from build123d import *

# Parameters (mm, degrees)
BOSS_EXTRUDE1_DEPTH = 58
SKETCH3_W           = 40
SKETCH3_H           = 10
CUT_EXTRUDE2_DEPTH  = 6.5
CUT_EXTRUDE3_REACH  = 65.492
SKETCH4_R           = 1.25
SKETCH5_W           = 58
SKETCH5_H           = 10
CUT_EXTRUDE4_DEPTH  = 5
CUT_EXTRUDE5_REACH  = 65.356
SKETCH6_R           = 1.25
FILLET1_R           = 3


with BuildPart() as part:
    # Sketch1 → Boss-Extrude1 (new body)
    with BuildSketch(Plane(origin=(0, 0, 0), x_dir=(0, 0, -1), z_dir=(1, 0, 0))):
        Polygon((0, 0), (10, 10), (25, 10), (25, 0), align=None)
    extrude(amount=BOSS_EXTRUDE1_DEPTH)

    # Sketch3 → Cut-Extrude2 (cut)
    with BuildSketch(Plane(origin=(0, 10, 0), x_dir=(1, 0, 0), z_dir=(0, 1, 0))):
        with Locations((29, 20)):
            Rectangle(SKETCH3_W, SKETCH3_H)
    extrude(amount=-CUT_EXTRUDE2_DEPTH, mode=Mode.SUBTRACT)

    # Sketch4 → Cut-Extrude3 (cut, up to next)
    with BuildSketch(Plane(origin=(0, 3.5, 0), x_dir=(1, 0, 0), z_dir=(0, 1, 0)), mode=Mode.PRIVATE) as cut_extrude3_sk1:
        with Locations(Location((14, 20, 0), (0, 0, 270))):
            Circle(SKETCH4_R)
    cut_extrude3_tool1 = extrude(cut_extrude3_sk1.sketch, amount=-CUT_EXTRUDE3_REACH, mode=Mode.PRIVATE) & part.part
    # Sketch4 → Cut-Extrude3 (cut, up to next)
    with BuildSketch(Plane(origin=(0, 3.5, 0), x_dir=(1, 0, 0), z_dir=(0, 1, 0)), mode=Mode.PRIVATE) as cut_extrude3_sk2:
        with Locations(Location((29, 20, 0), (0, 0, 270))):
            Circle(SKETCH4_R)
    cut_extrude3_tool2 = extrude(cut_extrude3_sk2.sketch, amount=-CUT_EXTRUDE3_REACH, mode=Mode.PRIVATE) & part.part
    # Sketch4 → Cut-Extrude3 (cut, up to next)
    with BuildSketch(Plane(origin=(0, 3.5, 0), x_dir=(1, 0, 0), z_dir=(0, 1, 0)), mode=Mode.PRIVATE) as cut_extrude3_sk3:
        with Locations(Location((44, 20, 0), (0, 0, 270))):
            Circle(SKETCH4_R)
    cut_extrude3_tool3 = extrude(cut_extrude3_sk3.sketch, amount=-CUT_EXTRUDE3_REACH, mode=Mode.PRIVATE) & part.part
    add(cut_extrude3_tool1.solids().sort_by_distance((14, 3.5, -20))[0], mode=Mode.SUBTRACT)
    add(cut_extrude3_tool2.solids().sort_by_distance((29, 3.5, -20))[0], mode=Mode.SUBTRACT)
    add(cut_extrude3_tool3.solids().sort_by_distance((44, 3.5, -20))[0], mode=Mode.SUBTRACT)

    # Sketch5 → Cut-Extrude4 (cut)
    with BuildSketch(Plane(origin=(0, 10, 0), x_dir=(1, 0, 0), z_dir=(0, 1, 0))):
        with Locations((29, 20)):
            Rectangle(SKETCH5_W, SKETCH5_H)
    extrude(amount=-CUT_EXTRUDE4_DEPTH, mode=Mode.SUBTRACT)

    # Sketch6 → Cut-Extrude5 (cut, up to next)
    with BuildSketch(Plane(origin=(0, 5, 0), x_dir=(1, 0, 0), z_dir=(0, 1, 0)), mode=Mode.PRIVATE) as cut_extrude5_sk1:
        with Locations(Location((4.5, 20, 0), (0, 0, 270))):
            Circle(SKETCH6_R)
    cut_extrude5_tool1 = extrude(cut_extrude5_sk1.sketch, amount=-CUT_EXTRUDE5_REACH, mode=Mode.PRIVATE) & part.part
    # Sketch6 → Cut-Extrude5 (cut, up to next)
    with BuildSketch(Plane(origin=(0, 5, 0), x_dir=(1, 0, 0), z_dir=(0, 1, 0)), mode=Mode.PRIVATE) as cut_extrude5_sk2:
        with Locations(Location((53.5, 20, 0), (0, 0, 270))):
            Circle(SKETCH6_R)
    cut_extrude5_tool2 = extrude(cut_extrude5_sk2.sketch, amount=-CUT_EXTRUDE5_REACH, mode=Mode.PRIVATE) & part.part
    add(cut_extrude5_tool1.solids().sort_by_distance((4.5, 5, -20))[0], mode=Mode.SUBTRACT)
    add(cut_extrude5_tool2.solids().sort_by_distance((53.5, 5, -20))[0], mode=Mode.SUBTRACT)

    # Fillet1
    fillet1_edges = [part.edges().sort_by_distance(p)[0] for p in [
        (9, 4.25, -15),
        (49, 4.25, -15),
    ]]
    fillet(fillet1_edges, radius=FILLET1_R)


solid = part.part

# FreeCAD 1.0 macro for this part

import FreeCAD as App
import Part
import Sketcher


def edges_at(feature, points):
    """Names of the edges that pass closest to the given points."""
    edges = feature.Shape.Edges
    near = lambda p: min(range(len(edges)), key=lambda i: edges[i].distToShape(Part.Vertex(*p))[0])
    return sorted({f"Edge{near(p) + 1}" for p in points})


def add_polygon(sketch, points):
    """Adds a closed chain of lines whose ends are joined by coincident constraints."""
    first, n = sketch.GeometryCount, len(points)
    for a, b in zip(points, points[1:] + points[:1]):
        sketch.addGeometry(Part.LineSegment(App.Vector(*a, 0), App.Vector(*b, 0)), False)
    for i in range(n):
        sketch.addConstraint(Sketcher.Constraint("Coincident", first + i, 2, first + (i + 1) % n, 1))

doc = App.newDocument("Part")
body = doc.addObject("PartDesign::Body", "Body")

sketch1 = doc.addObject("Sketcher::SketchObject", "Sketch")
body.addObject(sketch1)
sketch1.AttachmentSupport = (doc.YZ_Plane, [""])
sketch1.MapMode = "FlatFace"
add_polygon(sketch1, [(10, -10), (0, 0), (0, -25), (10, -25)])
sketch1.addConstraint([
    Sketcher.Constraint("Vertical", 1),
    Sketcher.Constraint("Horizontal", 2),
    Sketcher.Constraint("Vertical", 3),
    Sketcher.Constraint("Coincident", 0, 2, -1, 1),
    Sketcher.Constraint("DistanceX", 2, 1, 2, 2, 10.0),
    Sketcher.Constraint("DistanceY", 1, 2, 1, 1, 25.0),
    Sketcher.Constraint("DistanceY", 3, 1, 3, 2, 15.0),
])
pad1 = doc.addObject("PartDesign::Pad", "Pad")
body.addObject(pad1)
pad1.Profile = sketch1
pad1.Length = 58

sketch2 = doc.addObject("Sketcher::SketchObject", "Sketch001")
body.addObject(sketch2)
sketch2.AttachmentSupport = (doc.XZ_Plane, [""])
sketch2.MapMode = "FlatFace"
sketch2.AttachmentOffset = App.Placement(App.Vector(0, 0, -10), App.Rotation())
add_polygon(sketch2, [(9, -25), (9, -15), (49, -15), (49, -25)])
sketch2.addConstraint([
    Sketcher.Constraint("Vertical", 0),
    Sketcher.Constraint("Horizontal", 1),
    Sketcher.Constraint("Vertical", 2),
    Sketcher.Constraint("Horizontal", 3),
    Sketcher.Constraint("DistanceX", 1, 1, 1, 2, 40.0),
    Sketcher.Constraint("DistanceY", 0, 1, 0, 2, 10.0),
    Sketcher.Constraint("DistanceX", -1, 1, 0, 2, 9.0),
    Sketcher.Constraint("DistanceY", 0, 2, -1, 1, 15.0),
])
pocket1 = doc.addObject("PartDesign::Pocket", "Pocket")
body.addObject(pocket1)
pocket1.Profile = sketch2
pocket1.Length = 6.5
pocket1.Reversed = True

sketch3 = doc.addObject("Sketcher::SketchObject", "Sketch002")
body.addObject(sketch3)
sketch3.AttachmentSupport = (doc.XZ_Plane, [""])
sketch3.MapMode = "FlatFace"
sketch3.AttachmentOffset = App.Placement(App.Vector(0, 0, -3.5), App.Rotation())
sketch3.addGeometry(Part.Circle(App.Vector(14, -20, 0), App.Vector(0, 0, 1), 1.2), False)
sketch3.addConstraint([
    Sketcher.Constraint("Diameter", 0, 2.5),
    Sketcher.Constraint("DistanceX", -1, 1, 0, 3, 14.0),
    Sketcher.Constraint("DistanceY", 0, 3, -1, 1, 20.0),
])
pocket2 = doc.addObject("PartDesign::Pocket", "Pocket001")
body.addObject(pocket2)
pocket2.Profile = sketch3
pocket2.Type = "UpToFirst"
pocket2.Reversed = True

sketch4 = doc.addObject("Sketcher::SketchObject", "Sketch003")
body.addObject(sketch4)
sketch4.AttachmentSupport = (doc.XZ_Plane, [""])
sketch4.MapMode = "FlatFace"
sketch4.AttachmentOffset = App.Placement(App.Vector(0, 0, -3.5), App.Rotation())
sketch4.addGeometry(Part.Circle(App.Vector(29, -20, 0), App.Vector(0, 0, 1), 1.2), False)
sketch4.addConstraint([
    Sketcher.Constraint("Diameter", 0, 2.5),
    Sketcher.Constraint("DistanceX", -1, 1, 0, 3, 29.0),
    Sketcher.Constraint("DistanceY", 0, 3, -1, 1, 20.0),
])
pocket3 = doc.addObject("PartDesign::Pocket", "Pocket002")
body.addObject(pocket3)
pocket3.Profile = sketch4
pocket3.Type = "UpToFirst"
pocket3.Reversed = True

sketch5 = doc.addObject("Sketcher::SketchObject", "Sketch004")
body.addObject(sketch5)
sketch5.AttachmentSupport = (doc.XZ_Plane, [""])
sketch5.MapMode = "FlatFace"
sketch5.AttachmentOffset = App.Placement(App.Vector(0, 0, -3.5), App.Rotation())
sketch5.addGeometry(Part.Circle(App.Vector(44, -20, 0), App.Vector(0, 0, 1), 1.2), False)
sketch5.addConstraint([
    Sketcher.Constraint("Diameter", 0, 2.5),
    Sketcher.Constraint("DistanceX", -1, 1, 0, 3, 44.0),
    Sketcher.Constraint("DistanceY", 0, 3, -1, 1, 20.0),
])
pocket4 = doc.addObject("PartDesign::Pocket", "Pocket003")
body.addObject(pocket4)
pocket4.Profile = sketch5
pocket4.Type = "UpToFirst"
pocket4.Reversed = True

sketch6 = doc.addObject("Sketcher::SketchObject", "Sketch005")
body.addObject(sketch6)
sketch6.AttachmentSupport = (doc.XZ_Plane, [""])
sketch6.MapMode = "FlatFace"
sketch6.AttachmentOffset = App.Placement(App.Vector(0, 0, -10), App.Rotation())
add_polygon(sketch6, [(0, -25), (0, -15), (58, -15), (58, -25)])
sketch6.addConstraint([
    Sketcher.Constraint("Vertical", 0),
    Sketcher.Constraint("Horizontal", 1),
    Sketcher.Constraint("Vertical", 2),
    Sketcher.Constraint("Horizontal", 3),
    Sketcher.Constraint("PointOnObject", 0, 2, -2),
    Sketcher.Constraint("DistanceX", 1, 1, 1, 2, 58.0),
    Sketcher.Constraint("DistanceY", 0, 1, 0, 2, 10.0),
    Sketcher.Constraint("DistanceY", 0, 2, -1, 1, 15.0),
])
pocket5 = doc.addObject("PartDesign::Pocket", "Pocket004")
body.addObject(pocket5)
pocket5.Profile = sketch6
pocket5.Length = 5
pocket5.Reversed = True

sketch7 = doc.addObject("Sketcher::SketchObject", "Sketch006")
body.addObject(sketch7)
sketch7.AttachmentSupport = (doc.XZ_Plane, [""])
sketch7.MapMode = "FlatFace"
sketch7.AttachmentOffset = App.Placement(App.Vector(0, 0, -5), App.Rotation())
sketch7.addGeometry(Part.Circle(App.Vector(4.5, -20, 0), App.Vector(0, 0, 1), 1.2), False)
sketch7.addConstraint([
    Sketcher.Constraint("Diameter", 0, 2.5),
    Sketcher.Constraint("DistanceY", 0, 3, -1, 1, 20.0),
    Sketcher.Constraint("DistanceX", -1, 1, 0, 3, 4.5),
])
pocket6 = doc.addObject("PartDesign::Pocket", "Pocket005")
body.addObject(pocket6)
pocket6.Profile = sketch7
pocket6.Type = "UpToFirst"
pocket6.Reversed = True

sketch8 = doc.addObject("Sketcher::SketchObject", "Sketch007")
body.addObject(sketch8)
sketch8.AttachmentSupport = (doc.XZ_Plane, [""])
sketch8.MapMode = "FlatFace"
sketch8.AttachmentOffset = App.Placement(App.Vector(0, 0, -5), App.Rotation())
sketch8.addGeometry(Part.Circle(App.Vector(53.5, -20, 0), App.Vector(0, 0, 1), 1.2), False)
sketch8.addConstraint([
    Sketcher.Constraint("Diameter", 0, 2.5),
    Sketcher.Constraint("DistanceY", 0, 3, -1, 1, 20.0),
    Sketcher.Constraint("DistanceX", -1, 1, 0, 3, 53.5),
])
pocket7 = doc.addObject("PartDesign::Pocket", "Pocket006")
body.addObject(pocket7)
pocket7.Profile = sketch8
pocket7.Type = "UpToFirst"
pocket7.Reversed = True
doc.recompute()

fillet = doc.addObject("PartDesign::Fillet", "Fillet")
body.addObject(fillet)
fillet.Base = (pocket7, edges_at(pocket7, [(9, 4.25, -15), (49, 4.25, -15)]))
fillet.Radius = 3

doc.recompute()
